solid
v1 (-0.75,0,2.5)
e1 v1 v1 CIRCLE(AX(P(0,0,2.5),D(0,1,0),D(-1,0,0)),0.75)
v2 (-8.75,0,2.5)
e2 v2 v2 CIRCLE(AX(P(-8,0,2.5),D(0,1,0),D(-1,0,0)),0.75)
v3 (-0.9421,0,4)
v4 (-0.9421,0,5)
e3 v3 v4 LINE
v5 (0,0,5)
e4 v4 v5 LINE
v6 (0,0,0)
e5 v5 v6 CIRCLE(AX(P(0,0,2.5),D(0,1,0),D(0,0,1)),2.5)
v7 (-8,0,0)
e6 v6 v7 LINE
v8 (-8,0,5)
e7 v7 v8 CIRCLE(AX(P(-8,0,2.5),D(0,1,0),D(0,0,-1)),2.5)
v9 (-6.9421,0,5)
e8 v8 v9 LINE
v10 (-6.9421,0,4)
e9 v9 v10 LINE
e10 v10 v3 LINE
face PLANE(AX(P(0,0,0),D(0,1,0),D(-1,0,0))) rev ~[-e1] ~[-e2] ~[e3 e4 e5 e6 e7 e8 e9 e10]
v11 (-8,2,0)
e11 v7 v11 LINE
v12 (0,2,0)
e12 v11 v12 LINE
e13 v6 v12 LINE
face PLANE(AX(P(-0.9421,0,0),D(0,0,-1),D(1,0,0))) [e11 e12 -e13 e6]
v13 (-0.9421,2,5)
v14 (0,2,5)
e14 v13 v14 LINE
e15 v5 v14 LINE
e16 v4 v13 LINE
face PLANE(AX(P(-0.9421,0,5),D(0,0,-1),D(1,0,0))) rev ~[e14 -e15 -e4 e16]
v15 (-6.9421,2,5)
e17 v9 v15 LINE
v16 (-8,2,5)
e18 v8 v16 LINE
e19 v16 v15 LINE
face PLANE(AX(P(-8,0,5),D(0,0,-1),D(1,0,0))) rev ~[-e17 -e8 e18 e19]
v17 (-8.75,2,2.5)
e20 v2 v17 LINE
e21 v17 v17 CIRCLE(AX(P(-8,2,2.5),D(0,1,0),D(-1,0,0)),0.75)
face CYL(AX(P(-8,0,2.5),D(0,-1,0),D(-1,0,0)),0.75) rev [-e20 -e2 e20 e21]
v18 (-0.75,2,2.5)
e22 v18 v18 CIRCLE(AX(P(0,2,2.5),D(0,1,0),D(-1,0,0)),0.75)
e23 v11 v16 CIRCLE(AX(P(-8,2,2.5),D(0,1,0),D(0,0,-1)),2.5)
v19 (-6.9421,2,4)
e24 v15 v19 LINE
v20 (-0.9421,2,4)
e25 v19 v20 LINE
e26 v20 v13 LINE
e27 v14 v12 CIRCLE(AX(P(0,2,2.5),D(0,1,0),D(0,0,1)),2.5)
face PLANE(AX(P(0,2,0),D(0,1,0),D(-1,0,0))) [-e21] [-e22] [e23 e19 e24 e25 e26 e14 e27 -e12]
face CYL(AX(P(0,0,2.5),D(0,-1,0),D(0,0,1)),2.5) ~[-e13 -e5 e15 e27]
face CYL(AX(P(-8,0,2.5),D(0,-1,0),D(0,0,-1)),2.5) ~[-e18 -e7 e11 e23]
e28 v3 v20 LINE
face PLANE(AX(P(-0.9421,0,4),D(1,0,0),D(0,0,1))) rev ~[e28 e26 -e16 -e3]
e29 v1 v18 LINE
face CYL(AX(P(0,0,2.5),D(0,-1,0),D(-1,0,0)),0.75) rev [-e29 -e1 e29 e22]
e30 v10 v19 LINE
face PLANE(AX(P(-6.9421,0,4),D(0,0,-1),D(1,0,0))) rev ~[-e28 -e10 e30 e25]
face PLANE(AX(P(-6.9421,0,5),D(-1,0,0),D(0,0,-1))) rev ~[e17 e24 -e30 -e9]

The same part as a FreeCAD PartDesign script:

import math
import FreeCAD as App
import Part
import Sketcher

V = App.Vector

doc = App.newDocument("Part")
body = doc.addObject("PartDesign::Body", "Body")

# Sketch on XZ plane
sketch1 = body.newObject("Sketcher::SketchObject", "Sketch")
sketch1.AttachmentSupport = (doc.getObject("XZ_Plane"), [""])
sketch1.MapMode = "FlatFace"
sketch1.addGeometry(Part.LineSegment(V(0, 0, 0), V(-8, 0, 0)), False)
sketch1.addGeometry(Part.ArcOfCircle(Part.Circle(V(-8, 2.5, 0), V(0, 0, 1), 2.5), math.radians(90), math.radians(270)), False)
sketch1.addGeometry(Part.LineSegment(V(-8, 5, 0), V(-6.9, 5, 0)), False)
sketch1.addGeometry(Part.LineSegment(V(-6.9, 5, 0), V(-6.9, 4, 0)), False)
sketch1.addGeometry(Part.LineSegment(V(-6.9, 4, 0), V(-0.9, 4, 0)), False)
sketch1.addGeometry(Part.LineSegment(V(-0.9, 4, 0), V(-0.9, 5, 0)), False)
sketch1.addGeometry(Part.LineSegment(V(-0.9, 5, 0), V(0, 5, 0)), False)
sketch1.addGeometry(Part.ArcOfCircle(Part.Circle(V(0, 2.5, 0), V(0, 0, 1), 2.5), math.radians(-90), math.radians(90)), False)
sketch1.addGeometry(Part.Circle(V(0, 2.5, 0), V(0, 0, 1), 0.8), False)
sketch1.addGeometry(Part.Circle(V(-8, 2.5, 0), V(0, 0, 1), 0.8), False)
sketch1.addConstraint(Sketcher.Constraint("Tangent", 0, 2, 1, 2))
sketch1.addConstraint(Sketcher.Constraint("Tangent", 1, 1, 2, 1))
sketch1.addConstraint(Sketcher.Constraint("Coincident", 2, 2, 3, 1))
sketch1.addConstraint(Sketcher.Constraint("Coincident", 3, 2, 4, 1))
sketch1.addConstraint(Sketcher.Constraint("Coincident", 4, 2, 5, 1))
sketch1.addConstraint(Sketcher.Constraint("Coincident", 5, 2, 6, 1))
sketch1.addConstraint(Sketcher.Constraint("Tangent", 6, 2, 7, 2))
sketch1.addConstraint(Sketcher.Constraint("Tangent", 7, 1, 0, 1))
sketch1.addConstraint(Sketcher.Constraint("Horizontal", 0))
sketch1.addConstraint(Sketcher.Constraint("Horizontal", 2))
sketch1.addConstraint(Sketcher.Constraint("Vertical", 3))
sketch1.addConstraint(Sketcher.Constraint("Horizontal", 4))
sketch1.addConstraint(Sketcher.Constraint("Vertical", 5))
sketch1.addConstraint(Sketcher.Constraint("Horizontal", 6))
sketch1.addConstraint(Sketcher.Constraint("Coincident", 7, 1, -1, 1))
sketch1.addConstraint(Sketcher.Constraint("Coincident", 8, 3, 7, 3))
sketch1.addConstraint(Sketcher.Constraint("Coincident", 9, 3, 1, 3))
sketch1.addConstraint(Sketcher.Constraint("Equal", 1, 7))
sketch1.addConstraint(Sketcher.Constraint("Equal", 8, 9))
sketch1.addConstraint(Sketcher.Constraint("DistanceY", 3, 2, 3, 1, 1.0))
sketch1.addConstraint(Sketcher.Constraint("Diameter", 8, 1.5))
sketch1.addConstraint(Sketcher.Constraint("Radius", 1, 2.5))
sketch1.addConstraint(Sketcher.Constraint("DistanceX", 0, 2, 0, 1, 8.0))
sketch1.addConstraint(Sketcher.Constraint("DistanceX", 4, 1, 4, 2, 6.0))
sketch1.addConstraint(Sketcher.Constraint("DistanceX", 2, 1, 2, 2, 1.058))
pad1 = body.newObject("PartDesign::Pad", "Pad")
pad1.Profile = sketch1
pad1.Length = 2
pad1.Reversed = True

doc.recompute()
